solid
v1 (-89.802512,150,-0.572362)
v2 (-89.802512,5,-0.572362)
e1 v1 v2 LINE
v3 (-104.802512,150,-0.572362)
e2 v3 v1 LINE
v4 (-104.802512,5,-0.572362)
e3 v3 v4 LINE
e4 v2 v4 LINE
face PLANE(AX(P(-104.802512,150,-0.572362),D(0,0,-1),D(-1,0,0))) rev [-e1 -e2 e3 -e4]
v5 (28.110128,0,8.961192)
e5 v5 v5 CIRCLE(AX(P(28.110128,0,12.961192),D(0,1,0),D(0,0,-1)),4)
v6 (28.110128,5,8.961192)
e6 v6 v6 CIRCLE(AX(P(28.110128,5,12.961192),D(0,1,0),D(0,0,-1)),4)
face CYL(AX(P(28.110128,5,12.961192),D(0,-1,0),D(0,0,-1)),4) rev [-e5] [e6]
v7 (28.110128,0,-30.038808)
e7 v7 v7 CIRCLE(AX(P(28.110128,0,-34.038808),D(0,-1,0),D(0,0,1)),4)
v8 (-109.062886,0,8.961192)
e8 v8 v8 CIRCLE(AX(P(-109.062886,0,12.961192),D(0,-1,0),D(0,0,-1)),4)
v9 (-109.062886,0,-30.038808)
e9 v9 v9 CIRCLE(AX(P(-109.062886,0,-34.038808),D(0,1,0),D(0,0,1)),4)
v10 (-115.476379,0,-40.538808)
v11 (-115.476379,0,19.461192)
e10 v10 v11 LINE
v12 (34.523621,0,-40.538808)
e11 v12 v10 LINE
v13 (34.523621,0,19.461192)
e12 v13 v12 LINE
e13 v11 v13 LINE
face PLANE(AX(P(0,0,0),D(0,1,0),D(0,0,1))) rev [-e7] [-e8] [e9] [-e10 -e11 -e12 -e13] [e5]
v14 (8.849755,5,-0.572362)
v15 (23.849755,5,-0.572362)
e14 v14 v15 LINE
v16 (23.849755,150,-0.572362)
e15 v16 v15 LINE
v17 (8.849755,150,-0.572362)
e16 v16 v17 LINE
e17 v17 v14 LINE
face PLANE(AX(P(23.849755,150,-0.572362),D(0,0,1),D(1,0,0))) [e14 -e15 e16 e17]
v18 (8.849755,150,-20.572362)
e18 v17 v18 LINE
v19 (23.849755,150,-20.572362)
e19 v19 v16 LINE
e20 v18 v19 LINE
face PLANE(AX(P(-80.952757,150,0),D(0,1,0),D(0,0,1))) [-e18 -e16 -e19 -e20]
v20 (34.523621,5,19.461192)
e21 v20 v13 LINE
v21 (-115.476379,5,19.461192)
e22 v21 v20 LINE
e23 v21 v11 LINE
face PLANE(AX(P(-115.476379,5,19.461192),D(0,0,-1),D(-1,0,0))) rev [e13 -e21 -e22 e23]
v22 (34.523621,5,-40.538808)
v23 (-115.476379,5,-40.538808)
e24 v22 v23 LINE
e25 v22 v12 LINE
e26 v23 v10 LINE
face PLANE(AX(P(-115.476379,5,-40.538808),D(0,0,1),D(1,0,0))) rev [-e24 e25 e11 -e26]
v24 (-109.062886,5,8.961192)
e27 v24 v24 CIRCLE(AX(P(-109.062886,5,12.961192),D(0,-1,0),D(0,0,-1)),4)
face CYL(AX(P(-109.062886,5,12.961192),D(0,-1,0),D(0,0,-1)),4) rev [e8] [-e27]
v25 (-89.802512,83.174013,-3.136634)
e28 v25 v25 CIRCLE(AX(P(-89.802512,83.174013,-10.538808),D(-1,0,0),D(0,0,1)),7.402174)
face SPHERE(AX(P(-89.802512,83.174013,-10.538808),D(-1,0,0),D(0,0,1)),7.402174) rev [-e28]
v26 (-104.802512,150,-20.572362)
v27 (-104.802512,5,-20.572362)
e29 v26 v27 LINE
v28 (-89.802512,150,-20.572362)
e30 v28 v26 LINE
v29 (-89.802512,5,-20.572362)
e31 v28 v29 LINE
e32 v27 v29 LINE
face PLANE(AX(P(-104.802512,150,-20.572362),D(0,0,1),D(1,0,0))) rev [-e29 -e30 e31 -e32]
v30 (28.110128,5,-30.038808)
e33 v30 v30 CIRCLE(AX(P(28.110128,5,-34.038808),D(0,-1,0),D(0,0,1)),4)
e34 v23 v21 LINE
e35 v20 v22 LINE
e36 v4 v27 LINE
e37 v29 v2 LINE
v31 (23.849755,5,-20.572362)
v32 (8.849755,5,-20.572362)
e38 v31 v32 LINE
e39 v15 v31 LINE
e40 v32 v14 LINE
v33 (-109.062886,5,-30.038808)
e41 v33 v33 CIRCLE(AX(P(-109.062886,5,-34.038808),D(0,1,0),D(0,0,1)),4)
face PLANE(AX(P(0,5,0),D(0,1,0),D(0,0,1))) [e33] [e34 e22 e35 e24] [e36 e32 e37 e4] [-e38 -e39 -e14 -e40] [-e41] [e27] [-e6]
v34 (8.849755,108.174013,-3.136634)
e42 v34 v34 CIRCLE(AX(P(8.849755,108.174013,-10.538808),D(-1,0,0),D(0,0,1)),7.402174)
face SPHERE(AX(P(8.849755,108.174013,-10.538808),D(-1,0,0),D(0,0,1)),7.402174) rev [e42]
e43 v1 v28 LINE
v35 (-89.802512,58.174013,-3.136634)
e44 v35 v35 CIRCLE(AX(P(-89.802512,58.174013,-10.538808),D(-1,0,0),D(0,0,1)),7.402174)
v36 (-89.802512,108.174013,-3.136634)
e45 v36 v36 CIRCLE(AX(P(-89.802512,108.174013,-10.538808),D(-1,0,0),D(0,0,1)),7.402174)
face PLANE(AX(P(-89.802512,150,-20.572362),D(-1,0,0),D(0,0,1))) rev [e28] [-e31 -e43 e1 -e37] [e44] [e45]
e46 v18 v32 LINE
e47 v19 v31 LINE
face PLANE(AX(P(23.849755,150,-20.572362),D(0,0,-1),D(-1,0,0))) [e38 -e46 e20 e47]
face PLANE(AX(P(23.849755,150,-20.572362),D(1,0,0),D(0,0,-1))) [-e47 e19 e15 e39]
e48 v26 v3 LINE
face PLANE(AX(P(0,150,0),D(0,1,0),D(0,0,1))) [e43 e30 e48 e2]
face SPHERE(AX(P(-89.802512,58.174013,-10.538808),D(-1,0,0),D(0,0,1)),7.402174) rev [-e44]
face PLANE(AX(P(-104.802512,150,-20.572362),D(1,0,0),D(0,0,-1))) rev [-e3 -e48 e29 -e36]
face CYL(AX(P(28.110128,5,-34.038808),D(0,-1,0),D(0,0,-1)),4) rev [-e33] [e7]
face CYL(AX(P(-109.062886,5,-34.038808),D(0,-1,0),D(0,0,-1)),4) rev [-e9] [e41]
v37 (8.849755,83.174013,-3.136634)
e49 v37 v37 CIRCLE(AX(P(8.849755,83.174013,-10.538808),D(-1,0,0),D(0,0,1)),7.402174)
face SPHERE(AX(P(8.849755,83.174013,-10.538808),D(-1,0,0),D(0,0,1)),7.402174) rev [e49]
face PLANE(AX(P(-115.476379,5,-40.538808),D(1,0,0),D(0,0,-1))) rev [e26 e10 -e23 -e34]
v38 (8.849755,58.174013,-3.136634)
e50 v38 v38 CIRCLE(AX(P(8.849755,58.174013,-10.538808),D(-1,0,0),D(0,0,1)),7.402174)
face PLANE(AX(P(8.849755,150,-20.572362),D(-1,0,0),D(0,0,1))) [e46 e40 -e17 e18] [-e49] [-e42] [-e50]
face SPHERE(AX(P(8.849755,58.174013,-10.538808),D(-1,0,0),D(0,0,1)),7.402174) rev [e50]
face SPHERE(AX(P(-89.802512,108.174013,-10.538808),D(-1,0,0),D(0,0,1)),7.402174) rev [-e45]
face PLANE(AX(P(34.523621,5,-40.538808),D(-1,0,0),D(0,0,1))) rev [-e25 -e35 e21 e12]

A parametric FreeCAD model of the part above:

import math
import FreeCAD as App
import Part
import Sketcher

V = App.Vector
Q = App.Units.Quantity


def add_polygon(sketch, points):
    """Adds a closed chain of lines whose ends are joined by coincident constraints."""
    first, n = sketch.GeometryCount, len(points)
    for a, b in zip(points, points[1:] + points[:1]):
        sketch.addGeometry(Part.LineSegment(App.Vector(*a, 0), App.Vector(*b, 0)), False)
    for i in range(n):
        sketch.addConstraint(Sketcher.Constraint("Coincident", first + i, 2, first + (i + 1) % n, 1))

doc = App.newDocument("Part")
body = doc.addObject("PartDesign::Body", "Body")

# Sketch on XZ plane
sketch1 = body.newObject("Sketcher::SketchObject", "Sketch")
sketch1.AttachmentSupport = (doc.getObject("XZ_Plane"), [""])
sketch1.MapMode = "FlatFace"
add_polygon(sketch1, [(-115.476379, -40.538808), (-115.476379, 19.461192), (34.523621, 19.461192), (34.523621, -40.538808)])  # lines 0-3
sketch1.addConstraint([
    Sketcher.Constraint("Vertical", 0),
    Sketcher.Constraint("Horizontal", 1),
    Sketcher.Constraint("Vertical", 2),
    Sketcher.Constraint("Horizontal", 3),
    Sketcher.Constraint("DistanceX", 1, 1, 1, 2, Q("150 mm")),
    Sketcher.Constraint("DistanceY", 0, 1, 0, 2, Q("60 mm")),
    Sketcher.Constraint("DistanceX", 0, 2, -1, 1, Q("115.476379 mm")),
    Sketcher.Constraint("DistanceY", -1, 1, 0, 2, Q("19.461192 mm")),
])
pad1 = body.newObject("PartDesign::Pad", "Pad")
pad1.Profile = sketch1
pad1.Length = 5
pad1.Reversed = True

# Sketch on XZ plane
sketch2 = body.newObject("Sketcher::SketchObject", "Sketch001")
sketch2.AttachmentSupport = (doc.getObject("XZ_Plane"), [""])
sketch2.MapMode = "FlatFace"
add_polygon(sketch2, [(-104.802512, -20.572362), (-104.802512, -0.572362), (-89.802512, -0.572362), (-89.802512, -20.572362)])  # lines 0-3
sketch2.addConstraint([
    Sketcher.Constraint("Vertical", 0),
    Sketcher.Constraint("Horizontal", 1),
    Sketcher.Constraint("Vertical", 2),
    Sketcher.Constraint("Horizontal", 3),
    Sketcher.Constraint("DistanceX", 1, 1, 1, 2, Q("15 mm")),
    Sketcher.Constraint("DistanceY", 0, 1, 0, 2, Q("20 mm")),
    Sketcher.Constraint("DistanceY", 0, 2, -1, 1, Q("0.572362 mm")),
    Sketcher.Constraint("DistanceX", 0, 2, -1, 1, Q("104.802512 mm")),
])
pad2 = body.newObject("PartDesign::Pad", "Pad001")
pad2.Profile = sketch2
pad2.Length = 150
pad2.Reversed = True

# Sketch on XY plane
sketch3 = body.newObject("Sketcher::SketchObject", "Sketch002")
sketch3.AttachmentSupport = (doc.getObject("XY_Plane"), [""])
sketch3.MapMode = "FlatFace"
sketch3.AttachmentOffset = App.Placement(V(0, 0, -10.538808), App.Rotation())
sketch3.addGeometry([
    Part.LineSegment(V(-89.802512, 75.771839, 0), V(-89.802512, 90.576187, 0)),
    Part.ArcOfCircle(Part.Circle(V(-89.802512, 83.174013, 0), V(0, 0, 1), 7.402174), math.radians(90), math.radians(270)),
], False)
sketch3.addGeometry(Part.LineSegment(V(-89.802512, 90.576187, 0), V(-89.802512, 75.771839, 0)), True)  # axis
sketch3.addConstraint([
    Sketcher.Constraint("Coincident", 0, 1, 1, 2),
    Sketcher.Constraint("Coincident", 1, 1, 0, 2),
    Sketcher.Constraint("Vertical", 0),
    Sketcher.Constraint("Vertical", 2),
    Sketcher.Constraint("Coincident", 2, 1, 1, 1),
    Sketcher.Constraint("Vertical", 1, 3, 0, 1),
    Sketcher.Constraint("Equal", 0, 2),
    Sketcher.Constraint("Radius", 1, Q("7.402174 mm")),
    Sketcher.Constraint("DistanceY", -1, 1, 0, 1, Q("75.771839 mm")),
    Sketcher.Constraint("DistanceX", 1, 3, -1, 1, Q("89.802512 mm")),
])
groove = body.newObject("PartDesign::Groove", "Groove")
groove.Profile = sketch3
groove.ReferenceAxis = (sketch3, ["Axis0"])
groove.Angle = 360
doc.recompute()

linearpattern = body.newObject("PartDesign::LinearPattern", "LinearPattern")
linearpattern.Originals = [groove]
linearpattern.Direction = (doc.getObject("Y_Axis"), [""])
linearpattern.Mode = "offset"
linearpattern.Offset = 25
linearpattern.Occurrences = 2
body.Tip = linearpattern
doc.recompute()

linearpattern2 = body.newObject("PartDesign::LinearPattern", "LinearPattern001")
linearpattern2.Originals = [groove]
linearpattern2.Direction = (doc.getObject("Y_Axis"), [""])
linearpattern2.Mode = "offset"
linearpattern2.Offset = 25
linearpattern2.Occurrences = 2
linearpattern2.Reversed = True
body.Tip = linearpattern2

# Sketch on XZ plane
sketch4 = body.newObject("Sketcher::SketchObject", "Sketch003")
sketch4.AttachmentSupport = (doc.getObject("XZ_Plane"), [""])
sketch4.MapMode = "FlatFace"
sketch4.addGeometry(Part.Circle(V(-109.062886, -34.038808, 0), V(0, 0, 1), 4), False)
sketch4.addConstraint([
    Sketcher.Constraint("Diameter", 0, Q("8 mm")),
    Sketcher.Constraint("DistanceY", 0, 3, -1, 1, Q("34.038808 mm")),
    Sketcher.Constraint("DistanceX", 0, 3, -1, 1, Q("109.062886 mm")),
])
pocket1 = body.newObject("PartDesign::Pocket", "Pocket")
pocket1.Profile = sketch4
pocket1.Length = 5
doc.recompute()

datumplane = body.newObject("PartDesign::Plane", "DatumPlane")
datumplane.AttachmentSupport = (doc.getObject("XY_Plane"), [""])
datumplane.MapMode = "FlatFace"
datumplane.AttachmentOffset = App.Placement(V(0, 0, -10.538808), App.Rotation())
mirrored = body.newObject("PartDesign::Mirrored", "Mirrored")
mirrored.Originals = [pocket1]
mirrored.MirrorPlane = (datumplane, [""])
body.Tip = mirrored
doc.recompute()

datumplane2 = body.newObject("PartDesign::Plane", "DatumPlane001")
datumplane2.AttachmentSupport = (doc.getObject("YZ_Plane"), [""])
datumplane2.MapMode = "FlatFace"
datumplane2.AttachmentOffset = App.Placement(V(0, 0, -40.476379), App.Rotation())
mirrored2 = body.newObject("PartDesign::Mirrored", "Mirrored001")
mirrored2.Originals = [pocket1]
mirrored2.MirrorPlane = (datumplane2, [""])
body.Tip = mirrored2

# Sketch on XZ plane
sketch5 = body.newObject("Sketcher::SketchObject", "Sketch004")
sketch5.AttachmentSupport = (doc.getObject("XZ_Plane"), [""])
sketch5.MapMode = "FlatFace"
sketch5.addGeometry(Part.Circle(V(28.110128, 12.961192, 0), V(0, 0, 1), 4), False)
sketch5.addConstraint([
    Sketcher.Constraint("Diameter", 0, Q("8 mm")),
    Sketcher.Constraint("DistanceX", -1, 1, 0, 3, Q("28.110128 mm")),
    Sketcher.Constraint("DistanceY", -1, 1, 0, 3, Q("12.961192 mm")),
])
pocket2 = body.newObject("PartDesign::Pocket", "Pocket001")
pocket2.Profile = sketch5
pocket2.Length = 5
doc.recompute()

datumplane3 = body.newObject("PartDesign::Plane", "DatumPlane002")
datumplane3.AttachmentSupport = (doc.getObject("YZ_Plane"), [""])
datumplane3.MapMode = "FlatFace"
datumplane3.AttachmentOffset = App.Placement(V(0, 0, -40.476379), App.Rotation())
mirrored3 = body.newObject("PartDesign::Mirrored", "Mirrored002")
mirrored3.Originals = [pad2]
mirrored3.MirrorPlane = (datumplane3, [""])
body.Tip = mirrored3
doc.recompute()

datumplane4 = body.newObject("PartDesign::Plane", "DatumPlane003")
datumplane4.AttachmentSupport = (doc.getObject("YZ_Plane"), [""])
datumplane4.MapMode = "FlatFace"
datumplane4.AttachmentOffset = App.Placement(V(0, 0, -40.476379), App.Rotation())
mirrored4 = body.newObject("PartDesign::Mirrored", "Mirrored003")
mirrored4.Originals = [groove]
mirrored4.MirrorPlane = (datumplane4, [""])
body.Tip = mirrored4

# Sketch on XY plane
sketch6 = body.newObject("Sketcher::SketchObject", "Sketch005")
sketch6.AttachmentSupport = (doc.getObject("XY_Plane"), [""])
sketch6.MapMode = "FlatFace"
sketch6.AttachmentOffset = App.Placement(V(0, 0, -10.538808), App.Rotation())
sketch6.addGeometry([
    Part.LineSegment(V(8.849755, 115.576187, 0), V(8.849755, 100.771839, 0)),
    Part.ArcOfCircle(Part.Circle(V(8.849755, 108.174013, 0), V(0, 0, 1), 7.402174), math.radians(-90), math.radians(90)),
], False)
sketch6.addGeometry(Part.LineSegment(V(8.849755, 100.771839, 0), V(8.849755, 115.576187, 0)), True)  # axis
sketch6.addConstraint([
    Sketcher.Constraint("Coincident", 0, 1, 1, 2),
    Sketcher.Constraint("Coincident", 1, 1, 0, 2),
    Sketcher.Constraint("Vertical", 0),
    Sketcher.Constraint("Vertical", 2),
    Sketcher.Constraint("Coincident", 2, 1, 1, 1),
    Sketcher.Constraint("Vertical", 1, 3, 0, 1),
    Sketcher.Constraint("Equal", 0, 2),
    Sketcher.Constraint("Radius", 1, Q("7.402174 mm")),
    Sketcher.Constraint("DistanceY", -1, 1, 1, 1, Q("100.771839 mm")),
    Sketcher.Constraint("DistanceX", -1, 1, 1, 3, Q("8.849755 mm")),
])
groove2 = body.newObject("PartDesign::Groove", "Groove001")
groove2.Profile = sketch6
groove2.ReferenceAxis = (sketch6, ["Axis0"])
groove2.Angle = 360

# Sketch on XY plane
sketch7 = body.newObject("Sketcher::SketchObject", "Sketch006")
sketch7.AttachmentSupport = (doc.getObject("XY_Plane"), [""])
sketch7.MapMode = "FlatFace"
sketch7.AttachmentOffset = App.Placement(V(0, 0, -10.538808), App.Rotation())
sketch7.addGeometry([
    Part.LineSegment(V(8.849755, 65.576187, 0), V(8.849755, 50.771839, 0)),
    Part.ArcOfCircle(Part.Circle(V(8.849755, 58.174013, 0), V(0, 0, 1), 7.402174), math.radians(-90), math.radians(90)),
], False)
sketch7.addGeometry(Part.LineSegment(V(8.849755, 50.771839, 0), V(8.849755, 65.576187, 0)), True)  # axis
sketch7.addConstraint([
    Sketcher.Constraint("Coincident", 0, 1, 1, 2),
    Sketcher.Constraint("Coincident", 1, 1, 0, 2),
    Sketcher.Constraint("Vertical", 0),
    Sketcher.Constraint("Vertical", 2),
    Sketcher.Constraint("Coincident", 2, 1, 1, 1),
    Sketcher.Constraint("Vertical", 1, 3, 0, 1),
    Sketcher.Constraint("Equal", 0, 2),
    Sketcher.Constraint("Radius", 1, Q("7.402174 mm")),
    Sketcher.Constraint("DistanceY", -1, 1, 1, 1, Q("50.771839 mm")),
    Sketcher.Constraint("DistanceX", -1, 1, 1, 3, Q("8.849755 mm")),
])
groove3 = body.newObject("PartDesign::Groove", "Groove002")
groove3.Profile = sketch7
groove3.ReferenceAxis = (sketch7, ["Axis0"])
groove3.Angle = 360

# Sketch on XY plane
sketch8 = body.newObject("Sketcher::SketchObject", "Sketch007")
sketch8.AttachmentSupport = (doc.getObject("XY_Plane"), [""])
sketch8.MapMode = "FlatFace"
sketch8.AttachmentOffset = App.Placement(V(0, 0, -10.538808), App.Rotation())
sketch8.addGeometry([
    Part.LineSegment(V(8.849755, 90.576187, 0), V(8.849755, 75.771839, 0)),
    Part.ArcOfCircle(Part.Circle(V(8.849755, 83.174013, 0), V(0, 0, 1), 7.402174), math.radians(-90), math.radians(90)),
], False)
sketch8.addGeometry(Part.LineSegment(V(8.849755, 75.771839, 0), V(8.849755, 90.576187, 0)), True)  # axis
sketch8.addConstraint([
    Sketcher.Constraint("Coincident", 0, 1, 1, 2),
    Sketcher.Constraint("Coincident", 1, 1, 0, 2),
    Sketcher.Constraint("Vertical", 0),
    Sketcher.Constraint("Vertical", 2),
    Sketcher.Constraint("Coincident", 2, 1, 1, 1),
    Sketcher.Constraint("Vertical", 1, 3, 0, 1),
    Sketcher.Constraint("Equal", 0, 2),
    Sketcher.Constraint("Radius", 1, Q("7.402174 mm")),
    Sketcher.Constraint("DistanceY", -1, 1, 1, 1, Q("75.771839 mm")),
    Sketcher.Constraint("DistanceX", -1, 1, 1, 3, Q("8.849755 mm")),
])
groove4 = body.newObject("PartDesign::Groove", "Groove003")
groove4.Profile = sketch8
groove4.ReferenceAxis = (sketch8, ["Axis0"])
groove4.Angle = 360

doc.recompute()
